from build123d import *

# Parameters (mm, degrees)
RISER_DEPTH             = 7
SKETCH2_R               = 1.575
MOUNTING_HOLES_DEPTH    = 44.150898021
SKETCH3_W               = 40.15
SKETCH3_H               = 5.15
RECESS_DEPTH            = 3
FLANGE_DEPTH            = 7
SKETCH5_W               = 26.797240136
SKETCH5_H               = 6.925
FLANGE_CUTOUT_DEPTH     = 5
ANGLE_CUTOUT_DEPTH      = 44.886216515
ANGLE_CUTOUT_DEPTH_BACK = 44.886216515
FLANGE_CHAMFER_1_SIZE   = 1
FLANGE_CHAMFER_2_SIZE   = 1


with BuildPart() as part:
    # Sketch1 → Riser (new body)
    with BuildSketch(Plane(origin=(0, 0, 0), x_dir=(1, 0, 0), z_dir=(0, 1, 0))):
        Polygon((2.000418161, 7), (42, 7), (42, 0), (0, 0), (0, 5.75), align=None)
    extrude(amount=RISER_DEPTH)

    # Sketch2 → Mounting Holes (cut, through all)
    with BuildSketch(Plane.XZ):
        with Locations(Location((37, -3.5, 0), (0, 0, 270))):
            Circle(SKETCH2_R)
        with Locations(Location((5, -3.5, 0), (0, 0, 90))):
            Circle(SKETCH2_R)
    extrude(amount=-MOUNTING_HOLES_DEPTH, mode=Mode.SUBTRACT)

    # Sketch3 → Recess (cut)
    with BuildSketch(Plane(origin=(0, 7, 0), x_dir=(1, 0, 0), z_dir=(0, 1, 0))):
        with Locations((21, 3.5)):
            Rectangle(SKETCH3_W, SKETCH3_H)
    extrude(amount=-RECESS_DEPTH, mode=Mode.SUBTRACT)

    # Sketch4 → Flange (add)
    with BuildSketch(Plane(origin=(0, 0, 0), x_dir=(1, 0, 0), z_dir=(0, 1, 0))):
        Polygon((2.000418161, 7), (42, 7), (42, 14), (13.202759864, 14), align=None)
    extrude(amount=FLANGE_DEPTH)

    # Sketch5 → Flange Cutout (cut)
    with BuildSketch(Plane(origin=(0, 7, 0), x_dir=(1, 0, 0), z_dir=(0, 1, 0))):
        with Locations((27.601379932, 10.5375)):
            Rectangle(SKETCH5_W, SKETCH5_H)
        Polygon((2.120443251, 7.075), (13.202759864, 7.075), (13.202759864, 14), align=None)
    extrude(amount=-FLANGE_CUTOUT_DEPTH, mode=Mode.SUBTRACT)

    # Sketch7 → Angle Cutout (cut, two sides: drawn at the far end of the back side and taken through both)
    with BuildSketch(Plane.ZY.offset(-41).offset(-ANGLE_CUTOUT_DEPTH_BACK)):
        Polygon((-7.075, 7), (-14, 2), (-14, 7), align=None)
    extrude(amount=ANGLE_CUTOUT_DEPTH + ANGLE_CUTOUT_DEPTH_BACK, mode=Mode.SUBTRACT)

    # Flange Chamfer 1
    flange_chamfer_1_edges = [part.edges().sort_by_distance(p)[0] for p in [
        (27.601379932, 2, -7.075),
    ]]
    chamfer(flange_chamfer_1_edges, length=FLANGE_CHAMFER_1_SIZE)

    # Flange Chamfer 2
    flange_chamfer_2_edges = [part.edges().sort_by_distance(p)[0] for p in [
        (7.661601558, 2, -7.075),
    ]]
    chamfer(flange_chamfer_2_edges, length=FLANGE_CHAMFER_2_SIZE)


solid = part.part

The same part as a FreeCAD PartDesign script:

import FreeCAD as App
import Part
import Sketcher
from FreeCAD import Vector
Q = App.Units.Quantity


def edges_at(feature, points):
    """Names of the edges that pass closest to the given points."""
    edges = feature.Shape.Edges
    near = lambda p: min(range(len(edges)), key=lambda i: edges[i].distToShape(Part.Vertex(*p))[0])
    return sorted({f"Edge{near(p) + 1}" for p in points})


def add_polygon(sketch, points):
    """Adds a closed chain of lines whose ends are joined by coincident constraints."""
    first, n = sketch.GeometryCount, len(points)
    for a, b in zip(points, points[1:] + points[:1]):
        sketch.addGeometry(Part.LineSegment(App.Vector(*a, 0), App.Vector(*b, 0)), False)
    for i in range(n):
        sketch.addConstraint(Sketcher.Constraint("Coincident", first + i, 2, first + (i + 1) % n, 1))

doc = App.newDocument("Part")
params = doc.addObject("Spreadsheet::Sheet", "Params")
for row, (alias, value) in enumerate([
    ("sketch1_width", "42 mm"),
    ("sketch1_height", "7 mm"),
    ("sketch1_height2", "5.75 mm"),
    ("pad1_length", "7 mm"),
    ("sketch2_diameter", "3.15 mm"),
    ("sketch3_width", "40.15 mm"),
    ("sketch3_height", "5.15 mm"),
    ("pocket2_length", "3 mm"),
    ("sketch4_height", "7 mm"),
    ("pad2_length", "7 mm"),
    ("pocket3_length", "5 mm"),
    ("sketch6_width", "5 mm"),
    ("chamfer_size", "1 mm"),
    ("chamfer2_size", "1 mm"),
], start=1):
    params.set(f"A{row}", alias)
    params.set(f"B{row}", "=" + value)
    params.setAlias(f"B{row}", alias)

body = doc.addObject("PartDesign::Body", "Body")

# Sketch on XZ plane
sketch1 = doc.addObject("Sketcher::SketchObject", "Sketch")
body.addObject(sketch1)
sketch1.AttachmentSupport = (doc.XZ_Plane, [""])
sketch1.MapMode = "FlatFace"
add_polygon(sketch1, [(42, -7), (2, -7), (0, -5.8), (0, 0), (42, 0)])  # lines 0-4
sketch1.addConstraint(Sketcher.Constraint("Horizontal", 0))
sketch1.addConstraint(Sketcher.Constraint("Vertical", 2))
sketch1.addConstraint(Sketcher.Constraint("Horizontal", 3))
sketch1.addConstraint(Sketcher.Constraint("Vertical", 4))
sketch1.addConstraint(Sketcher.Constraint("Coincident", 2, 2, -1, 1))
sketch1.addConstraint(Sketcher.Constraint("DistanceX", 3, 1, 3, 2, Q("42 mm")))
sketch1.addConstraint(Sketcher.Constraint("DistanceY", 4, 2, 4, 1, Q("7 mm")))
sketch1.addConstraint(Sketcher.Constraint("Angle", 1, Q("148 deg")))
sketch1.addConstraint(Sketcher.Constraint("DistanceY", 2, 1, 2, 2, Q("5.75 mm")))
sketch1.setExpression("Constraints[10]", "Params.sketch1_width")
sketch1.setExpression("Constraints[11]", "Params.sketch1_height")
sketch1.setExpression("Constraints[13]", "Params.sketch1_height2")
pad1 = doc.addObject("PartDesign::Pad", "Pad")
body.addObject(pad1)
pad1.Profile = sketch1
pad1.setExpression("Length", "Params.pad1_length")
pad1.Reversed = True

# Sketch on XZ plane
sketch2 = doc.addObject("Sketcher::SketchObject", "Sketch001")
body.addObject(sketch2)
sketch2.AttachmentSupport = (doc.XZ_Plane, [""])
sketch2.MapMode = "FlatFace"
sketch2.addGeometry(Part.Circle(Vector(37, -3.5, 0), Vector(0, 0, 1), 1.6), False)
sketch2.addGeometry(Part.Circle(Vector(5, -3.5, 0), Vector(0, 0, 1), 1.6), False)
sketch2.addConstraint(Sketcher.Constraint("Equal", 0, 1))
sketch2.addConstraint(Sketcher.Constraint("Horizontal", 0, 3, 1, 3))
sketch2.addConstraint(Sketcher.Constraint("Diameter", 0, Q("3.15 mm")))
sketch2.addConstraint(Sketcher.Constraint("DistanceX", -1, 1, 0, 3, Q("37 mm")))
sketch2.addConstraint(Sketcher.Constraint("DistanceX", -1, 1, 1, 3, Q("5 mm")))
sketch2.addConstraint(Sketcher.Constraint("DistanceY", 0, 3, -1, 1, Q("3.5 mm")))
sketch2.setExpression("Constraints[2]", "Params.sketch2_diameter")
pocket1 = doc.addObject("PartDesign::Pocket", "Pocket")
body.addObject(pocket1)
pocket1.Profile = sketch2
pocket1.Type = "ThroughAll"

# Sketch on XZ plane
sketch3 = doc.addObject("Sketcher::SketchObject", "Sketch002")
body.addObject(sketch3)
sketch3.AttachmentSupport = (doc.XZ_Plane, [""])
sketch3.MapMode = "FlatFace"
sketch3.AttachmentOffset = App.Placement(Vector(0, 0, -7), App.Rotation())
add_polygon(sketch3, [(1, -6), (1, -1), (41, -1), (41, -6)])  # lines 0-3
sketch3.addConstraint(Sketcher.Constraint("Vertical", 0))
sketch3.addConstraint(Sketcher.Constraint("Horizontal", 1))
sketch3.addConstraint(Sketcher.Constraint("Vertical", 2))
sketch3.addConstraint(Sketcher.Constraint("Horizontal", 3))
sketch3.addConstraint(Sketcher.Constraint("DistanceX", 1, 1, 1, 2, Q("40.15 mm")))
sketch3.addConstraint(Sketcher.Constraint("DistanceY", 0, 1, 0, 2, Q("5.15 mm")))
sketch3.addConstraint(Sketcher.Constraint("DistanceX", -1, 1, 0, 2, Q("0.925 mm")))
sketch3.addConstraint(Sketcher.Constraint("DistanceY", 0, 2, -1, 1, Q("0.925 mm")))
sketch3.setExpression("Constraints[8]", "Params.sketch3_width")
sketch3.setExpression("Constraints[9]", "Params.sketch3_height")
pocket2 = doc.addObject("PartDesign::Pocket", "Pocket001")
body.addObject(pocket2)
pocket2.Profile = sketch3
pocket2.setExpression("Length", "Params.pocket2_length")
pocket2.Reversed = True

# Sketch on XZ plane
sketch4 = doc.addObject("Sketcher::SketchObject", "Sketch003")
body.addObject(sketch4)
sketch4.AttachmentSupport = (doc.XZ_Plane, [""])
sketch4.MapMode = "FlatFace"
add_polygon(sketch4, [(2, -7), (42, -7), (42, -14), (13, -14)])  # lines 0-3
sketch4.addConstraint(Sketcher.Constraint("Horizontal", 0))
sketch4.addConstraint(Sketcher.Constraint("Vertical", 1))
sketch4.addConstraint(Sketcher.Constraint("Horizontal", 2))
sketch4.addConstraint(Sketcher.Constraint("DistanceY", 1, 2, 1, 1, Q("7 mm")))
sketch4.addConstraint(Sketcher.Constraint("Angle", 3, Q("148 deg")))
sketch4.addConstraint(Sketcher.Constraint("DistanceX", -1, 1, 0, 2, Q("42 mm")))
sketch4.addConstraint(Sketcher.Constraint("DistanceY", 0, 2, -1, 1, Q("7 mm")))
sketch4.addConstraint(Sketcher.Constraint("DistanceX", 0, 1, 0, 2, Q("39.999582 mm")))
sketch4.setExpression("Constraints[7]", "Params.sketch4_height")
pad2 = doc.addObject("PartDesign::Pad", "Pad001")
body.addObject(pad2)
pad2.Profile = sketch4
pad2.setExpression("Length", "Params.pad2_length")
pad2.Reversed = True

# Sketch on XZ plane
sketch5 = doc.addObject("Sketcher::SketchObject", "Sketch004")
body.addObject(sketch5)
sketch5.AttachmentSupport = (doc.XZ_Plane, [""])
sketch5.MapMode = "FlatFace"
sketch5.AttachmentOffset = App.Placement(Vector(0, 0, -7), App.Rotation())
add_polygon(sketch5, [(14, -14), (14, -7), (41, -7), (41, -14)])  # lines 0-3
add_polygon(sketch5, [(2, -7), (13, -7), (13, -14)])  # lines 4-6
sketch5.addConstraint(Sketcher.Constraint("Vertical", 0))
sketch5.addConstraint(Sketcher.Constraint("Horizontal", 1))
sketch5.addConstraint(Sketcher.Constraint("Vertical", 2))
sketch5.addConstraint(Sketcher.Constraint("Horizontal", 3))
sketch5.addConstraint(Sketcher.Constraint("Horizontal", 4))
sketch5.addConstraint(Sketcher.Constraint("Vertical", 5))
sketch5.addConstraint(Sketcher.Constraint("Horizontal", 1, 2, 4, 2))
sketch5.addConstraint(Sketcher.Constraint("Horizontal", 3, 2, 5, 2))
sketch5.addConstraint(Sketcher.Constraint("Angle", 6, Q("148 deg")))
sketch5.addConstraint(Sketcher.Constraint("DistanceX", -1, 1, 1, 2, Q("41 mm")))
sketch5.addConstraint(Sketcher.Constraint("DistanceY", 2, 2, -1, 1, Q("14 mm")))
sketch5.addConstraint(Sketcher.Constraint("DistanceX", 4, 2, 0, 2, Q("1 mm")))
sketch5.addConstraint(Sketcher.Constraint("DistanceY", 0, 1, 0, 2, Q("6.925 mm")))
sketch5.addConstraint(Sketcher.Constraint("DistanceX", 1, 1, 1, 2, Q("26.79724 mm")))
pocket3 = doc.addObject("PartDesign::Pocket", "Pocket002")
body.addObject(pocket3)
pocket3.Profile = sketch5
pocket3.setExpression("Length", "Params.pocket3_length")
pocket3.Reversed = True

# Sketch on YZ plane
sketch6 = doc.addObject("Sketcher::SketchObject", "Sketch005")
body.addObject(sketch6)
sketch6.AttachmentSupport = (doc.YZ_Plane, [""])
sketch6.MapMode = "FlatFace"
sketch6.AttachmentOffset = App.Placement(Vector(0, 0, 41), App.Rotation())
add_polygon(sketch6, [(2, -14), (7, -7), (7, -14)])  # lines 0-2
sketch6.addConstraint(Sketcher.Constraint("Vertical", 1))
sketch6.addConstraint(Sketcher.Constraint("Horizontal", 2))
sketch6.addConstraint(Sketcher.Constraint("DistanceX", 2, 2, 2, 1, Q("5 mm")))
sketch6.addConstraint(Sketcher.Constraint("DistanceX", -1, 1, 0, 2, Q("7 mm")))
sketch6.addConstraint(Sketcher.Constraint("DistanceY", 1, 2, -1, 1, Q("14 mm")))
sketch6.addConstraint(Sketcher.Constraint("DistanceY", 1, 2, 1, 1, Q("6.925 mm")))
sketch6.setExpression("Constraints[5]", "Params.sketch6_width")
pocket4 = doc.addObject("PartDesign::Pocket", "Pocket003")
body.addObject(pocket4)
pocket4.Profile = sketch6
pocket4.Type = "ThroughAll"
pocket4.Midplane = True
doc.recompute()

chamfer = doc.addObject("PartDesign::Chamfer", "Chamfer")
body.addObject(chamfer)
chamfer.Base = (pocket4, edges_at(pocket4, [(27.601, 2, -7.075)]))
chamfer.setExpression("Size", "Params.chamfer_size")
doc.recompute()

chamfer2 = doc.addObject("PartDesign::Chamfer", "Chamfer001")
body.addObject(chamfer2)
chamfer2.Base = (chamfer, edges_at(chamfer, [(7.662, 2, -7.075)]))
chamfer2.setExpression("Size", "Params.chamfer2_size")

doc.recompute()
